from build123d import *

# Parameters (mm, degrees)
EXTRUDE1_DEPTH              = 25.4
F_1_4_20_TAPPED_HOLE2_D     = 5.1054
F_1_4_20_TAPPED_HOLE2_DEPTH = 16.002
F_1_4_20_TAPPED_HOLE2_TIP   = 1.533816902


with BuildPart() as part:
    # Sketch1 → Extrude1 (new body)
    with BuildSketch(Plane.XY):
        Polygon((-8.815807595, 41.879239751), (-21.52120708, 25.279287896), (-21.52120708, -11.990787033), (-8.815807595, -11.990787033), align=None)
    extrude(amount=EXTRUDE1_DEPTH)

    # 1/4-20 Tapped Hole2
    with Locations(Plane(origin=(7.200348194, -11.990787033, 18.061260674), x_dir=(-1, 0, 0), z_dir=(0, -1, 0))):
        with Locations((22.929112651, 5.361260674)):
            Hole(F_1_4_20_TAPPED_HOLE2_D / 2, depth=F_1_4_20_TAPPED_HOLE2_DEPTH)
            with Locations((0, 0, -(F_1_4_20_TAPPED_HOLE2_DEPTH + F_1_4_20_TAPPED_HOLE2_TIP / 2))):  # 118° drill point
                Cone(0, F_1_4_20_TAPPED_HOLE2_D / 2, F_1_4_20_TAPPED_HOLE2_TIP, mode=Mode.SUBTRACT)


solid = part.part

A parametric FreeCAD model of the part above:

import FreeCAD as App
import Part
import Sketcher

V = App.Vector
Q = App.Units.Quantity


def add_polygon(sketch, points):
    """Adds a closed chain of lines whose ends are joined by coincident constraints."""
    first, n = sketch.GeometryCount, len(points)
    for a, b in zip(points, points[1:] + points[:1]):
        sketch.addGeometry(Part.LineSegment(App.Vector(*a, 0), App.Vector(*b, 0)), False)
    for i in range(n):
        sketch.addConstraint(Sketcher.Constraint("Coincident", first + i, 2, first + (i + 1) % n, 1))

doc = App.newDocument("Part")
body = doc.addObject("PartDesign::Body", "Body")

sketch1 = body.newObject("Sketcher::SketchObject", "Sketch")
sketch1.AttachmentSupport = (doc.getObject("XY_Plane"), [""])
sketch1.MapMode = "FlatFace"
add_polygon(sketch1, [(-9, 42), (-22, 25), (-22, -12), (-9, -12)])
sketch1.addConstraint(Sketcher.Constraint("Vertical", 1))
sketch1.addConstraint(Sketcher.Constraint("Horizontal", 2))
sketch1.addConstraint(Sketcher.Constraint("Vertical", 3))
sketch1.addConstraint(Sketcher.Constraint("Angle", 0, Q("-127.43 deg")))
sketch1.addConstraint(Sketcher.Constraint("Distance", 0, Q("0.823 in")))
sketch1.addConstraint(Sketcher.Constraint("DistanceY", 1, 2, 1, 1, 37.270075))
sketch1.addConstraint(Sketcher.Constraint("DistanceY", -1, 1, 3, 2, 41.87924))
sketch1.addConstraint(Sketcher.Constraint("DistanceX", 0, 2, -1, 1, 21.521207))
pad1 = body.newObject("PartDesign::Pad", "Pad")
pad1.Profile = sketch1
pad1.Length = Q("1 in")

sketch2 = body.newObject("Sketcher::SketchObject", "Sketch001")
sketch2.AttachmentSupport = (doc.getObject("XZ_Plane"), [""])
sketch2.MapMode = "FlatFace"
sketch2.AttachmentOffset = App.Placement(V(0, 0, 11.990787), App.Rotation())
sketch2.addGeometry(Part.Circle(V(-15.7, 12.7, 0), V(0, 0, 1), 2.6), False)
sketch2.addConstraint(Sketcher.Constraint("Diameter", 0, Q("0.201 in")))
sketch2.addConstraint(Sketcher.Constraint("DistanceY", -1, 1, 0, 3, Q("0.5 in")))
sketch2.addConstraint(Sketcher.Constraint("DistanceX", 0, 3, -1, 1, 15.728764))
doc.recompute()
hole = body.newObject("PartDesign::Hole", "Hole")
hole.Profile = sketch2
hole.ThreadType = "None"
hole.Diameter = Q("0.201 in")
hole.DepthType = "Dimension"
hole.Depth = Q("0.63 in")
hole.DrillPoint = "Angled"
hole.DrillPointAngle = 118

doc.recompute()
